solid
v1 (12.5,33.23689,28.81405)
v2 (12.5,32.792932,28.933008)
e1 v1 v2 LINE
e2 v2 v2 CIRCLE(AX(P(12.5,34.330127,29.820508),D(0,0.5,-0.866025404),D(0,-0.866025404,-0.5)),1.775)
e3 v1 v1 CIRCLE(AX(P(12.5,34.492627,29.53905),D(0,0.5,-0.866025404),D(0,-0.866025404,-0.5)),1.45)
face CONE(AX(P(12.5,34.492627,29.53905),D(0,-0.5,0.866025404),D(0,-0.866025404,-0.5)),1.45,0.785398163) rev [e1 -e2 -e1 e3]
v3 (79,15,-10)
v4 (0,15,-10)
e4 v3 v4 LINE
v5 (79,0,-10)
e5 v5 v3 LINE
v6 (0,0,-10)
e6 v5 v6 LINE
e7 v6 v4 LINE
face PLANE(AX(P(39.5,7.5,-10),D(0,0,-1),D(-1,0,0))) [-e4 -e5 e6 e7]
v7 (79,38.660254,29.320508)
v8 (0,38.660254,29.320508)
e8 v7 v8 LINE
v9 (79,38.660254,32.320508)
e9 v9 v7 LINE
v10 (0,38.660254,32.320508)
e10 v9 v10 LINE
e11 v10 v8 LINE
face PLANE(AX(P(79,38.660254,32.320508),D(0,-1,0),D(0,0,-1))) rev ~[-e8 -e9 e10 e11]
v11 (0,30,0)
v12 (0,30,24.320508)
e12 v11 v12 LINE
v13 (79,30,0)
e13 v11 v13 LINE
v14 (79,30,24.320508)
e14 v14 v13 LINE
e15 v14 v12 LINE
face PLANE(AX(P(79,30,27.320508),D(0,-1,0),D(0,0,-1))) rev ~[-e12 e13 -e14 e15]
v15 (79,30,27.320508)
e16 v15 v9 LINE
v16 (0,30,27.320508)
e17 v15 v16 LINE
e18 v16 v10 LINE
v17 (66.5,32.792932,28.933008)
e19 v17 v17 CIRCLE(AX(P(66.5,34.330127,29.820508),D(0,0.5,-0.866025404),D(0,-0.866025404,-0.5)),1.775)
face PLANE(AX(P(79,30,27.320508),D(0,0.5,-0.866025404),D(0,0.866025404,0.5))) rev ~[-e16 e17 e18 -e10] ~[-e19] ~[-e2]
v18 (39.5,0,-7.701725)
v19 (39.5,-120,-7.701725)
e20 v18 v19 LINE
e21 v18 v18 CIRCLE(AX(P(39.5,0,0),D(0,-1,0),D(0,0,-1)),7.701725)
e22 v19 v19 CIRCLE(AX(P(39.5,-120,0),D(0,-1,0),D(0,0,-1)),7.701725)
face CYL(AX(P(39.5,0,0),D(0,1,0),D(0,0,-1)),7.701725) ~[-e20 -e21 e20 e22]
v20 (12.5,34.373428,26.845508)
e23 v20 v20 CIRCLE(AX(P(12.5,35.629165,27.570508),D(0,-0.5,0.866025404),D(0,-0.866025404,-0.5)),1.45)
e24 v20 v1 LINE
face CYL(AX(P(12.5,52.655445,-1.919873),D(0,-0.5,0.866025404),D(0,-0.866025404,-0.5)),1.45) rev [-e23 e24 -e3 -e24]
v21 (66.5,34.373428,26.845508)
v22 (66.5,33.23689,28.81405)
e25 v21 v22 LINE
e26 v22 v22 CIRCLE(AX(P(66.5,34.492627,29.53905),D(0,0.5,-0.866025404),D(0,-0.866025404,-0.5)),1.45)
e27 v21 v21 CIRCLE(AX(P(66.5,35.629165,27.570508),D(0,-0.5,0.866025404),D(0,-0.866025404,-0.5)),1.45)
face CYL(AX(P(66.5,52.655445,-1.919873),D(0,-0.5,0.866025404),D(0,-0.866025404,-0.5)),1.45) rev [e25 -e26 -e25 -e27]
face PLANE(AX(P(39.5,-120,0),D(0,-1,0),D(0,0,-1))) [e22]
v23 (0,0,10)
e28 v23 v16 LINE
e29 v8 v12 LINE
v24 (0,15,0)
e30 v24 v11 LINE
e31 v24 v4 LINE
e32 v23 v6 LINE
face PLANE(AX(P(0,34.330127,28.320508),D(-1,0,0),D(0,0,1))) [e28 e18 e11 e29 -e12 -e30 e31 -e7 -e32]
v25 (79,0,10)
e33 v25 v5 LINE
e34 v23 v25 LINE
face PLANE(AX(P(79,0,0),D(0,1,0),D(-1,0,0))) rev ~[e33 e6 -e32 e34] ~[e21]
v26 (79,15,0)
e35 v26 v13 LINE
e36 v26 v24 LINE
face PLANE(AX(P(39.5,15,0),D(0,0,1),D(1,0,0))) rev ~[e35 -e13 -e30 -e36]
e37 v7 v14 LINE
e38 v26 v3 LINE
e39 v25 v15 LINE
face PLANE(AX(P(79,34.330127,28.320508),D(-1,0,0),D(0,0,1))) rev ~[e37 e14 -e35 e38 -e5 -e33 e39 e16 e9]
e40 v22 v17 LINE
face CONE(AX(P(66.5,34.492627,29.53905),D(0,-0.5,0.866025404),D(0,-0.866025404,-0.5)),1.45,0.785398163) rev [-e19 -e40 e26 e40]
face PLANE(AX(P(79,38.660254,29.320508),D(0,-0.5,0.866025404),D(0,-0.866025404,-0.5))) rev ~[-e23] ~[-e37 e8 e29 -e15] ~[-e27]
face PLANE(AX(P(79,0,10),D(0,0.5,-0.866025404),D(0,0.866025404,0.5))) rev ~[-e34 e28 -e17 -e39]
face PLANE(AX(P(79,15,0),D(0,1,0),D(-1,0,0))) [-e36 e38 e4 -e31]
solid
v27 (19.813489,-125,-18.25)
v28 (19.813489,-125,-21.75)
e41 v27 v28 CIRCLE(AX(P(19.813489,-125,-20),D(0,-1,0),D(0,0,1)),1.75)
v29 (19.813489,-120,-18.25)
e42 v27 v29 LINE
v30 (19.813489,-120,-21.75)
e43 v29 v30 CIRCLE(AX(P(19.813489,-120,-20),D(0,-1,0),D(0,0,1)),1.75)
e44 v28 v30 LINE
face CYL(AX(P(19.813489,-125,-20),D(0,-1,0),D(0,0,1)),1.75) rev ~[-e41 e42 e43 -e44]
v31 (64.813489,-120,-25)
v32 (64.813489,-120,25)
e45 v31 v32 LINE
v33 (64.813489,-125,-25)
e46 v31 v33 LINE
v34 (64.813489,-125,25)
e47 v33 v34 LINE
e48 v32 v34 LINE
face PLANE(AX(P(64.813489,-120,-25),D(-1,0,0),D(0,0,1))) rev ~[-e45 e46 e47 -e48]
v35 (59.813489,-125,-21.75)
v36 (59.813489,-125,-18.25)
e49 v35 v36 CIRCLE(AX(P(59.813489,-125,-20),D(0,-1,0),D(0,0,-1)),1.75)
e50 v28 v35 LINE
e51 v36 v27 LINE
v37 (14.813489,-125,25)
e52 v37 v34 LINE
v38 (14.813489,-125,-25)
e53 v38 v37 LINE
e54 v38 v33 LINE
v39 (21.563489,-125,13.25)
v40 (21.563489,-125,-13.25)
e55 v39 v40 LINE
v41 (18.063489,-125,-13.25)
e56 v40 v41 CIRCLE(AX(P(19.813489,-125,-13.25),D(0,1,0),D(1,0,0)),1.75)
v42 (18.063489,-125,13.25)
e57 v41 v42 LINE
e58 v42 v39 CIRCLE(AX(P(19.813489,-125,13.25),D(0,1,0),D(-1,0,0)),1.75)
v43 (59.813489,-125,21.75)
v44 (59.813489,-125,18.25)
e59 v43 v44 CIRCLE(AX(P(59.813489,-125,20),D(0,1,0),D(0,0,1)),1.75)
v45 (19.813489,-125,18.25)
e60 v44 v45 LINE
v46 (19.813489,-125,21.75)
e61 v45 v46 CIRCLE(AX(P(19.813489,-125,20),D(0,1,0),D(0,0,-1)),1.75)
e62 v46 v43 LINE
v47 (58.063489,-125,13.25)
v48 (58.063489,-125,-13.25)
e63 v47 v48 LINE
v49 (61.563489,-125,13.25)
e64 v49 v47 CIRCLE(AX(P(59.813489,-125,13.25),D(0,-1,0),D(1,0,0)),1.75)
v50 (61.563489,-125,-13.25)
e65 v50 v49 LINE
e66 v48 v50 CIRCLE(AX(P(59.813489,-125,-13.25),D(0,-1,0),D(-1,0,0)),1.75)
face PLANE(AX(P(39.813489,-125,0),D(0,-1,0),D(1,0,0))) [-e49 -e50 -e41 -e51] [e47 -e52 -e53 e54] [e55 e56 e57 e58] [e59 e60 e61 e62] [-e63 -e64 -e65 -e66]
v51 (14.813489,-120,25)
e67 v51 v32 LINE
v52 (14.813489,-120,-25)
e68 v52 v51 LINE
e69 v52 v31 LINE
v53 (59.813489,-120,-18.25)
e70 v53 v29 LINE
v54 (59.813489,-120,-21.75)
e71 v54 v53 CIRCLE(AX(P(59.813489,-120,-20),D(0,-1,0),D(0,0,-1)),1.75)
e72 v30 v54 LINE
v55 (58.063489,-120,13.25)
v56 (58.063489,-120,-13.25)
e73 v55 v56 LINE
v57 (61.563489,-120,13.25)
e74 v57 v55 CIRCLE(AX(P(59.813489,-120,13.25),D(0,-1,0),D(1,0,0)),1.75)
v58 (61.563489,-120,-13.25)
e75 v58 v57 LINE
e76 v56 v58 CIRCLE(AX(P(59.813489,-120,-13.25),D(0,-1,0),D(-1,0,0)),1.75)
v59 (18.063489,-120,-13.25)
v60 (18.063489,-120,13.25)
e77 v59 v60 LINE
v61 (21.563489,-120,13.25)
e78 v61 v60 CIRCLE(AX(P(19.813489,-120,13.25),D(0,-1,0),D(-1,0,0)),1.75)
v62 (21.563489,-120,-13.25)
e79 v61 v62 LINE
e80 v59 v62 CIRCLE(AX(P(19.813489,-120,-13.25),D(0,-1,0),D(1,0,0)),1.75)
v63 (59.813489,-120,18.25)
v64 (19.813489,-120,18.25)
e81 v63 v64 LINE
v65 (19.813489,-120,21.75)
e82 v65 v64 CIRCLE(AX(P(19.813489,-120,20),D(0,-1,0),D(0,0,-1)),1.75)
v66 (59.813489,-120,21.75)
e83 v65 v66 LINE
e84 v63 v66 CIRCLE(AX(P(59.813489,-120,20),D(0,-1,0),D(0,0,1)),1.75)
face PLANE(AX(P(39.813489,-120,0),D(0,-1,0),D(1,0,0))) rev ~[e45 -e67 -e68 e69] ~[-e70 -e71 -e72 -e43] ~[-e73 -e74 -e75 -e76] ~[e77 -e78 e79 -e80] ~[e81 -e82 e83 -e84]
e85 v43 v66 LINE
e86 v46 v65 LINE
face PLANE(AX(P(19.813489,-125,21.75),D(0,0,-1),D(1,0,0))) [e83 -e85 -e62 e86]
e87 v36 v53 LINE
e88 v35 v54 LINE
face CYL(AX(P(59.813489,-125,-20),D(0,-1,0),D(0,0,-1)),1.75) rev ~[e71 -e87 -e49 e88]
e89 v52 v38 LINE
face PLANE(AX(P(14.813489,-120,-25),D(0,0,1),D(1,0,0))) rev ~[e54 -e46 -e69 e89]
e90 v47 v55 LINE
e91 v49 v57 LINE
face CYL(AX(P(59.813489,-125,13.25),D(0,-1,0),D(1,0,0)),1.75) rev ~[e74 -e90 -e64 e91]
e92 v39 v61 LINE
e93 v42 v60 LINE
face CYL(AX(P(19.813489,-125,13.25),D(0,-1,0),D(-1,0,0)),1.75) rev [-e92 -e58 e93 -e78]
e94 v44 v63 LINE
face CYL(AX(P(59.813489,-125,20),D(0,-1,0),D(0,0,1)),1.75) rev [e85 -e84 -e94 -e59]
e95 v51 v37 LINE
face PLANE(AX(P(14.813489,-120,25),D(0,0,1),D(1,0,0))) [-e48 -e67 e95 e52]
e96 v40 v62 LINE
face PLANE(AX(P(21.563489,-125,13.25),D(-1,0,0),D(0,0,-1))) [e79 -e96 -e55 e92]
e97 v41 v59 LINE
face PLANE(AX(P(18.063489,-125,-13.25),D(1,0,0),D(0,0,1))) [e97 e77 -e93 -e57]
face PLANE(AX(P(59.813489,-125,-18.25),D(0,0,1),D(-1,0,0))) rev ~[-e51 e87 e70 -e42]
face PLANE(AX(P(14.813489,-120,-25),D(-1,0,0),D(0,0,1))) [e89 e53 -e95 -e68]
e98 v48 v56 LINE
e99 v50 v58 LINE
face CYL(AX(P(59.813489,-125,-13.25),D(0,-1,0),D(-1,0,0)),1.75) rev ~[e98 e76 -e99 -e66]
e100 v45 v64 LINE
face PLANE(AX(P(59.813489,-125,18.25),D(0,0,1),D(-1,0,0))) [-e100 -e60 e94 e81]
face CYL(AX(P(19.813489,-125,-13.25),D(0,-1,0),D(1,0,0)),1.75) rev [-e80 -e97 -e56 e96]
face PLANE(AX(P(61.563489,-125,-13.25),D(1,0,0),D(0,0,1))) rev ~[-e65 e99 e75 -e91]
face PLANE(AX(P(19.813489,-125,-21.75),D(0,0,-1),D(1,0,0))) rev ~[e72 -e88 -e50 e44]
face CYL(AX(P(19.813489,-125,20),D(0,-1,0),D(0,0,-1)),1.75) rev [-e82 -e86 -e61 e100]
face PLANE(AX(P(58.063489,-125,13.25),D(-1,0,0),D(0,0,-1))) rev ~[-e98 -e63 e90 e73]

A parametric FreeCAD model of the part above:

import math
import FreeCAD as App
import Part
import Sketcher

V = App.Vector
Q = App.Units.Quantity


def add_polygon(sketch, points):
    """Adds a closed chain of lines whose ends are joined by coincident constraints."""
    first, n = sketch.GeometryCount, len(points)
    for a, b in zip(points, points[1:] + points[:1]):
        sketch.addGeometry(Part.LineSegment(App.Vector(*a, 0), App.Vector(*b, 0)), False)
    for i in range(n):
        sketch.addConstraint(Sketcher.Constraint("Coincident", first + i, 2, first + (i + 1) % n, 1))

doc = App.newDocument("Part")
body = doc.addObject("PartDesign::Body", "Body")

# Sketch on XY plane
sketch1 = body.newObject("Sketcher::SketchObject", "Sketch")
sketch1.AttachmentSupport = (doc.getObject("XY_Plane"), [""])
sketch1.MapMode = "FlatFace"
add_polygon(sketch1, [(0, 30), (0, 0), (79, 0), (79, 30)])  # lines 0-3
sketch1.addConstraint([
    Sketcher.Constraint("Vertical", 0),
    Sketcher.Constraint("Horizontal", 1),
    Sketcher.Constraint("Vertical", 2),
    Sketcher.Constraint("Horizontal", 3),
    Sketcher.Constraint("Coincident", 0, 2, -1, 1),
    Sketcher.Constraint("DistanceX", 1, 1, 1, 2, 79.0),
    Sketcher.Constraint("DistanceY", 0, 2, 0, 1, 30.0),
])
pad1 = body.newObject("PartDesign::Pad", "Pad")
pad1.Profile = sketch1
pad1.Length = 10

# Sketch on XY plane
sketch2 = body.newObject("Sketcher::SketchObject", "Sketch001")
sketch2.AttachmentSupport = (doc.getObject("XY_Plane"), [""])
sketch2.MapMode = "FlatFace"
add_polygon(sketch2, [(79, 15), (79, 0), (0, 0), (0, 15)])  # lines 0-3
sketch2.addConstraint([
    Sketcher.Constraint("Vertical", 0),
    Sketcher.Constraint("Horizontal", 1),
    Sketcher.Constraint("Vertical", 2),
    Sketcher.Constraint("Horizontal", 3),
    Sketcher.Constraint("Coincident", 1, 2, -1, 1),
    Sketcher.Constraint("DistanceX", 1, 2, 1, 1, 79.0),
    Sketcher.Constraint("DistanceY", 0, 2, 0, 1, 15.0),
])
pad2 = body.newObject("PartDesign::Pad", "Pad001")
pad2.Profile = sketch2
pad2.Length = 10
pad2.Reversed = True

# Sketch on XZ plane
sketch3 = body.newObject("Sketcher::SketchObject", "Sketch002")
sketch3.AttachmentSupport = (doc.getObject("XZ_Plane"), [""])
sketch3.MapMode = "FlatFace"
sketch3.addGeometry(Part.Circle(V(40, 0, 0), V(0, 0, 1), 8), False)
sketch3.addConstraint([
    Sketcher.Constraint("PointOnObject", 0, 3, -1),
    Sketcher.Constraint("DistanceX", -1, 1, 0, 3, 39.5),
    Sketcher.Constraint("Diameter", 0, 15.403451),
])
pad3 = body.newObject("PartDesign::Pad", "Pad002")
pad3.Profile = sketch3
pad3.Length = 120

# Sketch on YZ plane
sketch4 = body.newObject("Sketcher::SketchObject", "Sketch003")
sketch4.AttachmentSupport = (doc.getObject("YZ_Plane"), [""])
sketch4.MapMode = "FlatFace"
sketch4.AttachmentOffset = App.Placement(V(0, 0, 79), App.Rotation())
add_polygon(sketch4, [(30, 27), (0, 10), (30, 10)])  # lines 0-2
sketch4.addConstraint([
    Sketcher.Constraint("Horizontal", 1),
    Sketcher.Constraint("Vertical", 2),
    Sketcher.Constraint("PointOnObject", 0, 2, -2),
    Sketcher.Constraint("DistanceX", 1, 1, 1, 2, 30.0),
    Sketcher.Constraint("Angle", 0, Q("-150 deg")),
    Sketcher.Constraint("DistanceY", -1, 1, 0, 2, 10.0),
])
pad4 = body.newObject("PartDesign::Pad", "Pad003")
pad4.Profile = sketch4
pad4.Length = 79
pad4.Reversed = True

# Sketch on YZ plane
sketch5 = body.newObject("Sketcher::SketchObject", "Sketch004")
sketch5.AttachmentSupport = (doc.getObject("YZ_Plane"), [""])
sketch5.MapMode = "FlatFace"
sketch5.AttachmentOffset = App.Placement(V(0, 0, 79), App.Rotation())
add_polygon(sketch5, [(38.7, 32.3), (30, 27.3), (30, 24.3), (38.7, 29.3)])  # lines 0-3
sketch5.addConstraint([
    Sketcher.Constraint("Vertical", 1),
    Sketcher.Constraint("Vertical", 3),
    Sketcher.Constraint("Parallel", 0, 2),
    Sketcher.Constraint("DistanceY", 1, 2, 1, 1, 3.0),
    Sketcher.Constraint("Angle", 0, Q("-150 deg")),
    Sketcher.Constraint("Distance", 0, 10.0),
    Sketcher.Constraint("DistanceX", -1, 1, 0, 2, 30.0),
    Sketcher.Constraint("DistanceY", -1, 1, 0, 2, 27.320508),
])
pad5 = body.newObject("PartDesign::Pad", "Pad004")
pad5.Profile = sketch5
pad5.Length = 79
pad5.Reversed = True

# Sketch on YZ plane
sketch6 = body.newObject("Sketcher::SketchObject", "Sketch005")
sketch6.AttachmentSupport = (doc.getObject("YZ_Plane"), [""])
sketch6.MapMode = "FlatFace"
sketch6.AttachmentOffset = App.Placement(V(0, 0, 12.5), App.Rotation())
add_polygon(sketch6, [(52.66, -1.92), (34.33, 29.82), (32.79, 28.93), (33.24, 28.81), (51.4, -2.64)])  # lines 0-4
sketch6.addGeometry(Part.LineSegment(V(34.33, 29.82, 0), V(52.66, -1.92, 0)), True)  # axis
sketch6.addConstraint([
    Sketcher.Constraint("Coincident", 5, 1, 0, 2),
    Sketcher.Constraint("Coincident", 5, 2, 4, 2),
    Sketcher.Constraint("Perpendicular", 0, 1),
    Sketcher.Constraint("Perpendicular", 1, 3),
    Sketcher.Constraint("Perpendicular", 3, 4),
    Sketcher.Constraint("Angle", 0, Q("120 deg")),
    Sketcher.Constraint("Angle", 2, Q("-15 deg")),
    Sketcher.Constraint("Distance", 4, 1.45),
    Sketcher.Constraint("Distance", 1, 1.775),
    Sketcher.Constraint("DistanceY", -1, 1, 0, 2, 29.820508),
    Sketcher.Constraint("DistanceX", -1, 1, 1, 2, 32.792932),
    Sketcher.Constraint("DistanceY", 3, 2, 1, 2, 31.577881),
])
groove = body.newObject("PartDesign::Groove", "Groove")
groove.Profile = sketch6
groove.ReferenceAxis = (sketch6, ["Axis0"])
groove.Angle = 360
doc.recompute()

linearpattern = body.newObject("PartDesign::LinearPattern", "LinearPattern")
linearpattern.Originals = [groove]
linearpattern.Direction = (doc.getObject("X_Axis"), [""])
linearpattern.Mode = "offset"
linearpattern.Offset = 54
linearpattern.Occurrences = 2
body.Tip = linearpattern
body2 = doc.addObject("PartDesign::Body", "Body001")

# Sketch on XZ plane
sketch7 = body2.newObject("Sketcher::SketchObject", "Sketch006")
sketch7.AttachmentSupport = (doc.getObject("XZ_Plane001"), [""])
sketch7.MapMode = "FlatFace"
sketch7.AttachmentOffset = App.Placement(V(0, 0, 120), App.Rotation())
add_polygon(sketch7, [(15, 25), (15, -25), (65, -25), (65, 25)])  # lines 0-3
sketch7.addConstraint([
    Sketcher.Constraint("Vertical", 0),
    Sketcher.Constraint("Horizontal", 1),
    Sketcher.Constraint("Vertical", 2),
    Sketcher.Constraint("Horizontal", 3),
    Sketcher.Constraint("Equal", 3, 0),
    Sketcher.Constraint("DistanceX", 1, 1, 1, 2, 50.0),
    Sketcher.Constraint("DistanceY", 0, 2, -1, 1, 25.0),
    Sketcher.Constraint("DistanceX", -1, 1, 0, 2, 14.813489),
])
pad6 = body2.newObject("PartDesign::Pad", "Pad005")
pad6.Profile = sketch7
pad6.Length = 5

# Sketch on XZ plane
sketch8 = body2.newObject("Sketcher::SketchObject", "Sketch007")
sketch8.AttachmentSupport = (doc.getObject("XZ_Plane001"), [""])
sketch8.MapMode = "FlatFace"
sketch8.AttachmentOffset = App.Placement(V(0, 0, 125), App.Rotation())
sketch8.addGeometry([
    Part.LineSegment(V(59.8, 21.8, 0), V(19.8, 21.8, 0)),  # 0
    Part.ArcOfCircle(Part.Circle(V(19.8, 20, 0), V(0, 0, 1), 1.8), math.radians(90), math.radians(270)),  # 1
    Part.LineSegment(V(19.8, 18.2, 0), V(59.8, 18.2, 0)),  # 2
    Part.ArcOfCircle(Part.Circle(V(59.8, 20, 0), V(0, 0, 1), 1.8), math.radians(-90), math.radians(90)),  # 3
    Part.LineSegment(V(19.8, -21.8, 0), V(59.8, -21.8, 0)),  # 4
    Part.ArcOfCircle(Part.Circle(V(59.8, -20, 0), V(0, 0, 1), 1.8), math.radians(-90), math.radians(90)),  # 5
    Part.LineSegment(V(59.8, -18.2, 0), V(19.8, -18.2, 0)),  # 6
    Part.ArcOfCircle(Part.Circle(V(19.8, -20, 0), V(0, 0, 1), 1.8), math.radians(90), math.radians(270)),  # 7
    Part.LineSegment(V(21.6, -13.2, 0), V(21.6, 13.2, 0)),  # 8
    Part.ArcOfCircle(Part.Circle(V(19.8, 13.2, 0), V(0, 0, 1), 1.8), math.radians(0), math.radians(180)),  # 9
    Part.LineSegment(V(18.1, 13.2, 0), V(18.1, -13.2, 0)),  # 10
    Part.ArcOfCircle(Part.Circle(V(19.8, -13.2, 0), V(0, 0, 1), 1.8), math.radians(180), math.radians(360)),  # 11
    Part.LineSegment(V(58.1, 13.2, 0), V(58.1, -13.2, 0)),  # 12
    Part.ArcOfCircle(Part.Circle(V(59.8, -13.2, 0), V(0, 0, 1), 1.8), math.radians(180), math.radians(360)),  # 13
    Part.LineSegment(V(61.6, -13.2, 0), V(61.6, 13.2, 0)),  # 14
    Part.ArcOfCircle(Part.Circle(V(59.8, 13.2, 0), V(0, 0, 1), 1.8), math.radians(0), math.radians(180)),  # 15
], False)
sketch8.addConstraint([
    Sketcher.Constraint("Tangent", 0, 2, 1, 1),
    Sketcher.Constraint("Tangent", 1, 2, 2, 1),
    Sketcher.Constraint("Tangent", 2, 2, 3, 1),
    Sketcher.Constraint("Tangent", 3, 2, 0, 1),
    Sketcher.Constraint("Tangent", 4, 2, 5, 1),
    Sketcher.Constraint("Tangent", 5, 2, 6, 1),
    Sketcher.Constraint("Tangent", 6, 2, 7, 1),
    Sketcher.Constraint("Tangent", 7, 2, 4, 1),
    Sketcher.Constraint("Tangent", 8, 2, 9, 1),
    Sketcher.Constraint("Tangent", 9, 2, 10, 1),
    Sketcher.Constraint("Tangent", 10, 2, 11, 1),
    Sketcher.Constraint("Tangent", 11, 2, 8, 1),
    Sketcher.Constraint("Tangent", 12, 2, 13, 1),
    Sketcher.Constraint("Tangent", 13, 2, 14, 1),
    Sketcher.Constraint("Tangent", 14, 2, 15, 1),
    Sketcher.Constraint("Tangent", 15, 2, 12, 1),
    Sketcher.Constraint("Horizontal", 0),
    Sketcher.Constraint("Horizontal", 2),
    Sketcher.Constraint("Horizontal", 4),
    Sketcher.Constraint("Horizontal", 6),
    Sketcher.Constraint("Vertical", 8),
    Sketcher.Constraint("Vertical", 10),
    Sketcher.Constraint("Vertical", 12),
    Sketcher.Constraint("Vertical", 14),
    Sketcher.Constraint("Equal", 3, 5),
    Sketcher.Constraint("Equal", 7, 9),
    Sketcher.Constraint("Equal", 11, 13),
    Sketcher.Constraint("Symmetric", 3, 3, 5, 3, -1),
    Sketcher.Constraint("Horizontal", 11, 3, 13, 3),
    Sketcher.Constraint("Horizontal", 9, 3, 15, 3),
    Sketcher.Constraint("Vertical", 1, 3, 7, 3),
    Sketcher.Constraint("Vertical", 7, 3, 9, 3),
    Sketcher.Constraint("Vertical", 5, 3, 13, 3),
    Sketcher.Constraint("DistanceX", 0, 2, 0, 1, 40.0),
    Sketcher.Constraint("Radius", 1, 1.75),
    Sketcher.Constraint("DistanceY", 8, 1, 8, 2, 26.5),
    Sketcher.Constraint("DistanceY", -1, 1, 1, 3, 20.0),
    Sketcher.Constraint("DistanceY", 11, 3, 0, 2, 35.0),
    Sketcher.Constraint("DistanceX", -1, 1, 1, 3, 19.813489),
])
pocket1 = body2.newObject("PartDesign::Pocket", "Pocket")
pocket1.Profile = sketch8
pocket1.Length = 10

doc.recompute()
